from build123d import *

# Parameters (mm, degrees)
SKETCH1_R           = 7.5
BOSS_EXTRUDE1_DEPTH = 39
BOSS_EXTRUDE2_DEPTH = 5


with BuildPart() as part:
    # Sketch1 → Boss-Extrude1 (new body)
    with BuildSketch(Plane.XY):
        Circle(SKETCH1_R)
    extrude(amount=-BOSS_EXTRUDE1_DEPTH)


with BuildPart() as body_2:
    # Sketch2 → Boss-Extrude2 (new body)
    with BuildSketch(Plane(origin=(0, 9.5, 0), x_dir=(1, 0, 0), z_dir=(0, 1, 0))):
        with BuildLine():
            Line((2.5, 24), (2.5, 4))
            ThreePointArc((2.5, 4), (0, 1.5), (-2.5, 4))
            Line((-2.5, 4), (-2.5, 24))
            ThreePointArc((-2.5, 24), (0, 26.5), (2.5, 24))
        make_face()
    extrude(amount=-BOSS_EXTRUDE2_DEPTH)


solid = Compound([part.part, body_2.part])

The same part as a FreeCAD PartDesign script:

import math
import FreeCAD as App
import Part
import Sketcher

V = App.Vector

doc = App.newDocument("Part")
body = doc.addObject("PartDesign::Body", "Body")

# Sketch on XY plane
sketch1 = body.newObject("Sketcher::SketchObject", "Sketch")
sketch1.AttachmentSupport = (doc.getObject("XY_Plane"), [""])
sketch1.MapMode = "FlatFace"
sketch1.addGeometry(Part.Circle(V(0, 0, 0), V(0, 0, 1), 7.5), False)
sketch1.addConstraint(Sketcher.Constraint("Coincident", 0, 3, -1, 1))
sketch1.addConstraint(Sketcher.Constraint("Diameter", 0, 15.0))
pad1 = body.newObject("PartDesign::Pad", "Pad")
pad1.Profile = sketch1
pad1.Length = 39
pad1.Reversed = True
body2 = doc.addObject("PartDesign::Body", "Body001")

# Sketch on XZ plane
sketch2 = body2.newObject("Sketcher::SketchObject", "Sketch001")
sketch2.AttachmentSupport = (doc.getObject("XZ_Plane001"), [""])
sketch2.MapMode = "FlatFace"
sketch2.AttachmentOffset = App.Placement(V(0, 0, -9.5), App.Rotation())
sketch2.addGeometry(Part.LineSegment(V(2.5, -4, 0), V(2.5, -24, 0)), False)
sketch2.addGeometry(Part.ArcOfCircle(Part.Circle(V(0, -24, 0), V(0, 0, 1), 2.5), math.radians(180), math.radians(360)), False)
sketch2.addGeometry(Part.LineSegment(V(-2.5, -24, 0), V(-2.5, -4, 0)), False)
sketch2.addGeometry(Part.ArcOfCircle(Part.Circle(V(0, -4, 0), V(0, 0, 1), 2.5), math.radians(0), math.radians(180)), False)
sketch2.addConstraint(Sketcher.Constraint("Tangent", 0, 2, 1, 2))
sketch2.addConstraint(Sketcher.Constraint("Tangent", 1, 1, 2, 1))
sketch2.addConstraint(Sketcher.Constraint("Tangent", 2, 2, 3, 2))
sketch2.addConstraint(Sketcher.Constraint("Tangent", 3, 1, 0, 1))
sketch2.addConstraint(Sketcher.Constraint("Vertical", 0))
sketch2.addConstraint(Sketcher.Constraint("Vertical", 2))
sketch2.addConstraint(Sketcher.Constraint("PointOnObject", 1, 3, -2))
sketch2.addConstraint(Sketcher.Constraint("Radius", 1, 2.5))
sketch2.addConstraint(Sketcher.Constraint("DistanceY", 0, 2, 0, 1, 20.0))
sketch2.addConstraint(Sketcher.Constraint("DistanceY", 1, 3, -1, 1, 24.0))
pad2 = body2.newObject("PartDesign::Pad", "Pad001")
pad2.Profile = sketch2
pad2.Length = 5

doc.recompute()
